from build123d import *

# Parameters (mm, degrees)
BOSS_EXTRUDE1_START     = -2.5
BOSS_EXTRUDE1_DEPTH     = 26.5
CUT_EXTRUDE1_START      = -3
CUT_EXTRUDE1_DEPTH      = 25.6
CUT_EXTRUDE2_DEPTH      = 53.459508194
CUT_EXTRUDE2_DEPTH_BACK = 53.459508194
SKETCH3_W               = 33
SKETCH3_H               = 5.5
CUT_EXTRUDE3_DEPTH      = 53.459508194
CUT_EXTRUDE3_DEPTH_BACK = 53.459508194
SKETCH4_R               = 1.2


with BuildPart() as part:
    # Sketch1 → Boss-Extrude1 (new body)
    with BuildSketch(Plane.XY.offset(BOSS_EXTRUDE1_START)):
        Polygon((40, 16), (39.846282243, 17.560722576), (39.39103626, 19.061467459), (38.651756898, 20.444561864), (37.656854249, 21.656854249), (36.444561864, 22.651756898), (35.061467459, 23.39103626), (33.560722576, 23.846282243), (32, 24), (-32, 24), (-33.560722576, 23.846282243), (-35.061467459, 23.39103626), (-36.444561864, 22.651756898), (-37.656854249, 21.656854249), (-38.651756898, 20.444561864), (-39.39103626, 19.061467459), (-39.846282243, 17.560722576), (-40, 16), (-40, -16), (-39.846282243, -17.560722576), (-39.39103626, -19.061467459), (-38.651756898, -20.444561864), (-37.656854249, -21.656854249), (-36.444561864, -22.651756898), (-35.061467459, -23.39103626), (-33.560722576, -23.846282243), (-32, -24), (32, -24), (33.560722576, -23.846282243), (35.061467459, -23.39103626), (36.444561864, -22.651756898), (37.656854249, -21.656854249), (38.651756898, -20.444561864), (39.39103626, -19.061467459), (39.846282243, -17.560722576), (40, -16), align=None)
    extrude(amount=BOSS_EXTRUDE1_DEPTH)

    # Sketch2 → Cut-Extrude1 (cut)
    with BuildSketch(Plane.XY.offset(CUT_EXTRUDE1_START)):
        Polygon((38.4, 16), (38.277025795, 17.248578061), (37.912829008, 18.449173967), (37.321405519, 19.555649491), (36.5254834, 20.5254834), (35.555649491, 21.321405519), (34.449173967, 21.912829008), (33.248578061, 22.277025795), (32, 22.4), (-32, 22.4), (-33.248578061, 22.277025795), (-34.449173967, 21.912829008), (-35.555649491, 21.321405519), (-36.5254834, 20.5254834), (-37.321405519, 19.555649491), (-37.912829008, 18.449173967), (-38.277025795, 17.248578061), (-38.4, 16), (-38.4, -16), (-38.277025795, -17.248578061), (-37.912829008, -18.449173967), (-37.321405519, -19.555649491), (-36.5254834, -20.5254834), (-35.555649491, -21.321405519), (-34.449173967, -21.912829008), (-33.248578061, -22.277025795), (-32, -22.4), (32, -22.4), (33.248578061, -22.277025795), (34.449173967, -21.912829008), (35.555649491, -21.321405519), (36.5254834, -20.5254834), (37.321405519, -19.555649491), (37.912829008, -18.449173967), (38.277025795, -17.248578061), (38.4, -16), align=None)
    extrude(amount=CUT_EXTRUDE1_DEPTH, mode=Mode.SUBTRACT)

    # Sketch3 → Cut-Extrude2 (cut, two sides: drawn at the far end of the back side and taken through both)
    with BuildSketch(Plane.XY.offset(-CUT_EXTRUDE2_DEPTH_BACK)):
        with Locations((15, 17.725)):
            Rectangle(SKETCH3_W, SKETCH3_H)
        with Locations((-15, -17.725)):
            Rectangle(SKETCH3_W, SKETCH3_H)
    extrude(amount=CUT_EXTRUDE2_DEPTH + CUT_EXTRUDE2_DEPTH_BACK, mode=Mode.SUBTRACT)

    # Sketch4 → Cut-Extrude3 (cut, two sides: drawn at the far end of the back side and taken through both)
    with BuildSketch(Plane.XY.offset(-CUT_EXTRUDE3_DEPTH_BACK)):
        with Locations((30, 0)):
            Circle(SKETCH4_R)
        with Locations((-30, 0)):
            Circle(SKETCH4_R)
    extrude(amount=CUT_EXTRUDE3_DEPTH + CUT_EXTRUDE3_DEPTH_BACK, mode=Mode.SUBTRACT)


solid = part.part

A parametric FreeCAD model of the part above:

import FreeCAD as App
import Part
import Sketcher
from FreeCAD import Vector


def add_polygon(sketch, points):
    """Adds a closed chain of lines whose ends are joined by coincident constraints."""
    first, n = sketch.GeometryCount, len(points)
    for a, b in zip(points, points[1:] + points[:1]):
        sketch.addGeometry(Part.LineSegment(App.Vector(*a, 0), App.Vector(*b, 0)), False)
    for i in range(n):
        sketch.addConstraint(Sketcher.Constraint("Coincident", first + i, 2, first + (i + 1) % n, 1))

doc = App.newDocument("Part")
body = doc.addObject("PartDesign::Body", "Body")

# Sketch on XY plane
sketch1 = doc.addObject("Sketcher::SketchObject", "Sketch")
body.addObject(sketch1)
sketch1.AttachmentSupport = (doc.XY_Plane, [""])
sketch1.MapMode = "FlatFace"
sketch1.AttachmentOffset = App.Placement(Vector(0, 0, -2.5), App.Rotation())
add_polygon(sketch1, [(40, 16), (39.8, 17.6), (39.4, 19.1), (38.7, 20.4), (37.7, 21.7), (36.4, 22.7), (35.1, 23.4), (33.6, 23.8), (32, 24), (-32, 24), (-33.6, 23.8), (-35.1, 23.4), (-36.4, 22.7), (-37.7, 21.7), (-38.7, 20.4), (-39.4, 19.1), (-39.8, 17.6), (-40, 16), (-40, -16), (-39.8, -17.6), (-39.4, -19.1), (-38.7, -20.4), (-37.7, -21.7), (-36.4, -22.7), (-35.1, -23.4), (-33.6, -23.8), (-32, -24), (32, -24), (33.6, -23.8), (35.1, -23.4), (36.4, -22.7), (37.7, -21.7), (38.7, -20.4), (39.4, -19.1), (39.8, -17.6), (40, -16)])  # lines 0-35
sketch1.addConstraint([
    Sketcher.Constraint("Horizontal", 8),
    Sketcher.Constraint("Vertical", 17),
    Sketcher.Constraint("Horizontal", 26),
    Sketcher.Constraint("Vertical", 35),
    Sketcher.Constraint("Symmetric", 0, 2, 18, 2, -1, 1),
    Sketcher.Constraint("Symmetric", 1, 2, 19, 2, -1, 1),
    Sketcher.Constraint("Symmetric", 2, 2, 20, 2, -1, 1),
    Sketcher.Constraint("Symmetric", 3, 2, 21, 2, -1, 1),
    Sketcher.Constraint("Symmetric", 4, 2, 22, 2, -1, 1),
    Sketcher.Constraint("Symmetric", 5, 2, 23, 2, -1, 1),
    Sketcher.Constraint("Symmetric", 6, 2, 24, 2, -1, 1),
    Sketcher.Constraint("Symmetric", 7, 2, 25, 2, -1, 1),
    Sketcher.Constraint("Symmetric", 9, 2, 27, 2, -1, 1),
    Sketcher.Constraint("Symmetric", 10, 2, 28, 2, -1, 1),
    Sketcher.Constraint("Symmetric", 11, 2, 29, 2, -1, 1),
    Sketcher.Constraint("Symmetric", 12, 2, 30, 2, -1, 1),
    Sketcher.Constraint("Symmetric", 13, 2, 31, 2, -1, 1),
    Sketcher.Constraint("Symmetric", 14, 2, 32, 2, -1, 1),
    Sketcher.Constraint("Symmetric", 15, 2, 33, 2, -1, 1),
    Sketcher.Constraint("Symmetric", 16, 2, 34, 2, -1, 1),
    Sketcher.Constraint("Symmetric", 6, 2, 9, 2, -2),
    Sketcher.Constraint("Symmetric", 5, 2, 10, 2, -2),
    Sketcher.Constraint("Symmetric", 4, 2, 11, 2, -2),
    Sketcher.Constraint("Symmetric", 3, 2, 12, 2, -2),
    Sketcher.Constraint("Symmetric", 2, 2, 13, 2, -2),
    Sketcher.Constraint("Symmetric", 1, 2, 14, 2, -2),
    Sketcher.Constraint("Symmetric", 0, 2, 15, 2, -2),
    Sketcher.Constraint("Perpendicular", 0, 9),
    Sketcher.Constraint("Perpendicular", 1, 10),
    Sketcher.Constraint("Perpendicular", 2, 11),
    Sketcher.Constraint("Perpendicular", 3, 12),
    Sketcher.Constraint("Perpendicular", 7, 16),
    Sketcher.Constraint("Perpendicular", 9, 18),
    Sketcher.Constraint("Perpendicular", 18, 27),
    Sketcher.Constraint("Horizontal", 17, 2, 34, 2),
    Sketcher.Constraint("Equal", 0, 1),
    Sketcher.Constraint("Equal", 1, 2),
    Sketcher.Constraint("Equal", 2, 3),
    Sketcher.Constraint("Equal", 3, 4),
    Sketcher.Constraint("Equal", 4, 5),
    Sketcher.Constraint("Equal", 5, 6),
    Sketcher.Constraint("Equal", 6, 7),
    Sketcher.Constraint("DistanceX", 8, 2, 8, 1, 64.0),
    Sketcher.Constraint("DistanceY", 17, 2, 17, 1, 32.0),
    Sketcher.Constraint("DistanceY", -1, 1, 7, 2, 24.0),
    Sketcher.Constraint("DistanceY", 28, 2, 2, 2, 43.835598),
    Sketcher.Constraint("DistanceY", -1, 1, 2, 2, 20.444562),
    Sketcher.Constraint("DistanceX", 2, 2, 1, 2, 0.739279),
    Sketcher.Constraint("DistanceY", 0, 2, 2, 2, 2.883839),
])
pad1 = doc.addObject("PartDesign::Pad", "Pad")
body.addObject(pad1)
pad1.Profile = sketch1
pad1.Length = 26.5

# Sketch on XY plane
sketch2 = doc.addObject("Sketcher::SketchObject", "Sketch001")
body.addObject(sketch2)
sketch2.AttachmentSupport = (doc.XY_Plane, [""])
sketch2.MapMode = "FlatFace"
sketch2.AttachmentOffset = App.Placement(Vector(0, 0, -3), App.Rotation())
add_polygon(sketch2, [(38.4, 16), (38.3, 17.2), (37.9, 18.4), (37.3, 19.6), (36.5, 20.5), (35.6, 21.3), (34.4, 21.9), (33.2, 22.3), (32, 22.4), (-32, 22.4), (-33.2, 22.3), (-34.4, 21.9), (-35.6, 21.3), (-36.5, 20.5), (-37.3, 19.6), (-37.9, 18.4), (-38.3, 17.2), (-38.4, 16), (-38.4, -16), (-38.3, -17.2), (-37.9, -18.4), (-37.3, -19.6), (-36.5, -20.5), (-35.6, -21.3), (-34.4, -21.9), (-33.2, -22.3), (-32, -22.4), (32, -22.4), (33.2, -22.3), (34.4, -21.9), (35.6, -21.3), (36.5, -20.5), (37.3, -19.6), (37.9, -18.4), (38.3, -17.2), (38.4, -16)])  # lines 0-35
sketch2.addConstraint([
    Sketcher.Constraint("Horizontal", 8),
    Sketcher.Constraint("Vertical", 17),
    Sketcher.Constraint("Horizontal", 26),
    Sketcher.Constraint("Vertical", 35),
    Sketcher.Constraint("Symmetric", 0, 2, 18, 2, -1, 1),
    Sketcher.Constraint("Symmetric", 1, 2, 19, 2, -1, 1),
    Sketcher.Constraint("Symmetric", 2, 2, 20, 2, -1, 1),
    Sketcher.Constraint("Symmetric", 3, 2, 21, 2, -1, 1),
    Sketcher.Constraint("Symmetric", 4, 2, 22, 2, -1, 1),
    Sketcher.Constraint("Symmetric", 5, 2, 23, 2, -1, 1),
    Sketcher.Constraint("Symmetric", 6, 2, 24, 2, -1, 1),
    Sketcher.Constraint("Symmetric", 7, 2, 25, 2, -1, 1),
    Sketcher.Constraint("Symmetric", 9, 2, 27, 2, -1, 1),
    Sketcher.Constraint("Symmetric", 10, 2, 28, 2, -1, 1),
    Sketcher.Constraint("Symmetric", 11, 2, 29, 2, -1, 1),
    Sketcher.Constraint("Symmetric", 12, 2, 30, 2, -1, 1),
    Sketcher.Constraint("Symmetric", 13, 2, 31, 2, -1, 1),
    Sketcher.Constraint("Symmetric", 14, 2, 32, 2, -1, 1),
    Sketcher.Constraint("Symmetric", 15, 2, 33, 2, -1, 1),
    Sketcher.Constraint("Symmetric", 16, 2, 34, 2, -1, 1),
    Sketcher.Constraint("Symmetric", 6, 2, 9, 2, -2),
    Sketcher.Constraint("Symmetric", 5, 2, 10, 2, -2),
    Sketcher.Constraint("Symmetric", 4, 2, 11, 2, -2),
    Sketcher.Constraint("Symmetric", 3, 2, 12, 2, -2),
    Sketcher.Constraint("Symmetric", 2, 2, 13, 2, -2),
    Sketcher.Constraint("Symmetric", 1, 2, 14, 2, -2),
    Sketcher.Constraint("Symmetric", 0, 2, 15, 2, -2),
    Sketcher.Constraint("Perpendicular", 0, 9),
    Sketcher.Constraint("Perpendicular", 1, 10),
    Sketcher.Constraint("Perpendicular", 2, 11),
    Sketcher.Constraint("Perpendicular", 3, 12),
    Sketcher.Constraint("Perpendicular", 7, 16),
    Sketcher.Constraint("Perpendicular", 9, 18),
    Sketcher.Constraint("Perpendicular", 18, 27),
    Sketcher.Constraint("Horizontal", 17, 2, 34, 2),
    Sketcher.Constraint("Equal", 0, 1),
    Sketcher.Constraint("Equal", 1, 2),
    Sketcher.Constraint("Equal", 2, 3),
    Sketcher.Constraint("Equal", 3, 4),
    Sketcher.Constraint("Equal", 4, 5),
    Sketcher.Constraint("Equal", 5, 6),
    Sketcher.Constraint("Equal", 6, 7),
    Sketcher.Constraint("DistanceX", 8, 2, 8, 1, 64.0),
    Sketcher.Constraint("DistanceY", 17, 2, 17, 1, 32.0),
    Sketcher.Constraint("DistanceY", -1, 1, 7, 2, 22.4),
    Sketcher.Constraint("DistanceY", 27, 2, 1, 2, 40.7262),
    Sketcher.Constraint("Distance", 0, 1.254619),
    Sketcher.Constraint("DistanceY", -1, 1, 0, 2, 17.248578),
    Sketcher.Constraint("DistanceY", -1, 1, 2, 2, 19.555649),
])
pocket1 = doc.addObject("PartDesign::Pocket", "Pocket")
body.addObject(pocket1)
pocket1.Profile = sketch2
pocket1.Length = 25.6
pocket1.Reversed = True

# Sketch on XY plane
sketch3 = doc.addObject("Sketcher::SketchObject", "Sketch002")
body.addObject(sketch3)
sketch3.AttachmentSupport = (doc.XY_Plane, [""])
sketch3.MapMode = "FlatFace"
add_polygon(sketch3, [(-2, 20), (-2, 15), (32, 15), (32, 20)])  # lines 0-3
add_polygon(sketch3, [(-32, -15), (-32, -20), (2, -20), (2, -15)])  # lines 4-7
sketch3.addConstraint([
    Sketcher.Constraint("Vertical", 0),
    Sketcher.Constraint("Horizontal", 1),
    Sketcher.Constraint("Vertical", 2),
    Sketcher.Constraint("Horizontal", 3),
    Sketcher.Constraint("Vertical", 4),
    Sketcher.Constraint("Horizontal", 5),
    Sketcher.Constraint("Vertical", 6),
    Sketcher.Constraint("Horizontal", 7),
    Sketcher.Constraint("Symmetric", 2, 2, 4, 2, -1, 1),
    Sketcher.Constraint("Symmetric", 0, 2, 6, 2, -1, 1),
    Sketcher.Constraint("DistanceX", 1, 1, 1, 2, 33.0),
    Sketcher.Constraint("DistanceY", 0, 2, 0, 1, 5.5),
    Sketcher.Constraint("DistanceX", 4, 2, 0, 2, 30.0),
    Sketcher.Constraint("DistanceY", 4, 2, 0, 2, 35.45),
])
pocket2 = doc.addObject("PartDesign::Pocket", "Pocket001")
body.addObject(pocket2)
pocket2.Profile = sketch3
pocket2.Type = "ThroughAll"
pocket2.Midplane = True

# Sketch on XY plane
sketch4 = doc.addObject("Sketcher::SketchObject", "Sketch003")
body.addObject(sketch4)
sketch4.AttachmentSupport = (doc.XY_Plane, [""])
sketch4.MapMode = "FlatFace"
sketch4.addGeometry([
    Part.Circle(Vector(30, 0, 0), Vector(0, 0, 1), 1.2),
    Part.Circle(Vector(-30, 0, 0), Vector(0, 0, 1), 1.2),
], False)
sketch4.addConstraint([
    Sketcher.Constraint("Equal", 0, 1),
    Sketcher.Constraint("Symmetric", 0, 3, 1, 3, -1, 1),
    Sketcher.Constraint("PointOnObject", 0, 3, -1),
    Sketcher.Constraint("Diameter", 0, 2.4),
    Sketcher.Constraint("DistanceX", -1, 1, 0, 3, 30.0),
])
pocket3 = doc.addObject("PartDesign::Pocket", "Pocket002")
body.addObject(pocket3)
pocket3.Profile = sketch4
pocket3.Type = "ThroughAll"
pocket3.Midplane = True

doc.recompute()
